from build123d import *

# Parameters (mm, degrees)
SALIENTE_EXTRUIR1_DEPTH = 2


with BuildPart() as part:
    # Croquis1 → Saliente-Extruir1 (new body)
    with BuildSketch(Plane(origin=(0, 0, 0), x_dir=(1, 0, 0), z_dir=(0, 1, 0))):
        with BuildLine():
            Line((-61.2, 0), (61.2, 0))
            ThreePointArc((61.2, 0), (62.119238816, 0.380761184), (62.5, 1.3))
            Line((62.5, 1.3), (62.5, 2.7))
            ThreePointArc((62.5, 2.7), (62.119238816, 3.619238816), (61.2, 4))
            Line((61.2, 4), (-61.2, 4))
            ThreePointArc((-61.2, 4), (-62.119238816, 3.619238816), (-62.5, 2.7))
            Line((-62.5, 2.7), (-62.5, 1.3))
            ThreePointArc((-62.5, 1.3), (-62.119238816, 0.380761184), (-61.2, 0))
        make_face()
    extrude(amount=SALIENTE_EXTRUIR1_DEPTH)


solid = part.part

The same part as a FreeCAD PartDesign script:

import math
import FreeCAD as App
import Part
import Sketcher
from FreeCAD import Vector
Q = App.Units.Quantity

doc = App.newDocument("Part")
params = doc.addObject("Spreadsheet::Sheet", "Params")
for row, (alias, value) in enumerate([
    ("sketch1_radius", "1.3 mm"),
    ("sketch1_width", "122.4 mm"),
    ("sketch1_height", "1.4 mm"),
    ("pad1_length", "2 mm"),
], start=1):
    params.set(f"A{row}", alias)
    params.set(f"B{row}", "=" + value)
    params.setAlias(f"B{row}", alias)

body = doc.addObject("PartDesign::Body", "Body")

# Sketch on XZ plane
sketch1 = body.newObject("Sketcher::SketchObject", "Sketch")
sketch1.AttachmentSupport = (doc.getObject("XZ_Plane"), [""])
sketch1.MapMode = "FlatFace"
sketch1.addGeometry([
    Part.LineSegment(Vector(-61.2, 0, 0), Vector(61.2, 0, 0)),  # 0
    Part.ArcOfCircle(Part.Circle(Vector(61.2, -1.3, 0), Vector(0, 0, 1), 1.3), math.radians(0), math.radians(90)),  # 1
    Part.LineSegment(Vector(62.5, -1.3, 0), Vector(62.5, -2.7, 0)),  # 2
    Part.ArcOfCircle(Part.Circle(Vector(61.2, -2.7, 0), Vector(0, 0, 1), 1.3), math.radians(-90), math.radians(0)),  # 3
    Part.LineSegment(Vector(61.2, -4, 0), Vector(-61.2, -4, 0)),  # 4
    Part.ArcOfCircle(Part.Circle(Vector(-61.2, -2.7, 0), Vector(0, 0, 1), 1.3), math.radians(180), math.radians(270)),  # 5
    Part.LineSegment(Vector(-62.5, -2.7, 0), Vector(-62.5, -1.3, 0)),  # 6
    Part.ArcOfCircle(Part.Circle(Vector(-61.2, -1.3, 0), Vector(0, 0, 1), 1.3), math.radians(90), math.radians(180)),  # 7
], False)
sketch1.addConstraint([
    Sketcher.Constraint("Tangent", 0, 2, 1, 2),
    Sketcher.Constraint("Tangent", 1, 1, 2, 1),
    Sketcher.Constraint("Tangent", 2, 2, 3, 2),
    Sketcher.Constraint("Tangent", 3, 1, 4, 1),
    Sketcher.Constraint("Tangent", 4, 2, 5, 2),
    Sketcher.Constraint("Tangent", 5, 1, 6, 1),
    Sketcher.Constraint("Tangent", 6, 2, 7, 2),
    Sketcher.Constraint("Tangent", 7, 1, 0, 1),
    Sketcher.Constraint("Horizontal", 0),
    Sketcher.Constraint("Vertical", 2),
    Sketcher.Constraint("Horizontal", 4),
    Sketcher.Constraint("Vertical", 6),
    Sketcher.Constraint("Equal", 1, 3),
    Sketcher.Constraint("Equal", 3, 5),
    Sketcher.Constraint("Equal", 5, 7),
    Sketcher.Constraint("Symmetric", 0, 2, 7, 1, -1, 1),
    Sketcher.Constraint("Radius", 1, Q("1.3 mm")),
    Sketcher.Constraint("DistanceX", 0, 1, 0, 2, Q("122.4 mm")),
    Sketcher.Constraint("DistanceY", 2, 2, 2, 1, Q("1.4 mm")),
])
sketch1.setExpression("Constraints[16]", "Params.sketch1_radius")
sketch1.setExpression("Constraints[17]", "Params.sketch1_width")
sketch1.setExpression("Constraints[18]", "Params.sketch1_height")
pad1 = body.newObject("PartDesign::Pad", "Pad")
pad1.Profile = sketch1
pad1.setExpression("Length", "Params.pad1_length")
pad1.Reversed = True

doc.recompute()
